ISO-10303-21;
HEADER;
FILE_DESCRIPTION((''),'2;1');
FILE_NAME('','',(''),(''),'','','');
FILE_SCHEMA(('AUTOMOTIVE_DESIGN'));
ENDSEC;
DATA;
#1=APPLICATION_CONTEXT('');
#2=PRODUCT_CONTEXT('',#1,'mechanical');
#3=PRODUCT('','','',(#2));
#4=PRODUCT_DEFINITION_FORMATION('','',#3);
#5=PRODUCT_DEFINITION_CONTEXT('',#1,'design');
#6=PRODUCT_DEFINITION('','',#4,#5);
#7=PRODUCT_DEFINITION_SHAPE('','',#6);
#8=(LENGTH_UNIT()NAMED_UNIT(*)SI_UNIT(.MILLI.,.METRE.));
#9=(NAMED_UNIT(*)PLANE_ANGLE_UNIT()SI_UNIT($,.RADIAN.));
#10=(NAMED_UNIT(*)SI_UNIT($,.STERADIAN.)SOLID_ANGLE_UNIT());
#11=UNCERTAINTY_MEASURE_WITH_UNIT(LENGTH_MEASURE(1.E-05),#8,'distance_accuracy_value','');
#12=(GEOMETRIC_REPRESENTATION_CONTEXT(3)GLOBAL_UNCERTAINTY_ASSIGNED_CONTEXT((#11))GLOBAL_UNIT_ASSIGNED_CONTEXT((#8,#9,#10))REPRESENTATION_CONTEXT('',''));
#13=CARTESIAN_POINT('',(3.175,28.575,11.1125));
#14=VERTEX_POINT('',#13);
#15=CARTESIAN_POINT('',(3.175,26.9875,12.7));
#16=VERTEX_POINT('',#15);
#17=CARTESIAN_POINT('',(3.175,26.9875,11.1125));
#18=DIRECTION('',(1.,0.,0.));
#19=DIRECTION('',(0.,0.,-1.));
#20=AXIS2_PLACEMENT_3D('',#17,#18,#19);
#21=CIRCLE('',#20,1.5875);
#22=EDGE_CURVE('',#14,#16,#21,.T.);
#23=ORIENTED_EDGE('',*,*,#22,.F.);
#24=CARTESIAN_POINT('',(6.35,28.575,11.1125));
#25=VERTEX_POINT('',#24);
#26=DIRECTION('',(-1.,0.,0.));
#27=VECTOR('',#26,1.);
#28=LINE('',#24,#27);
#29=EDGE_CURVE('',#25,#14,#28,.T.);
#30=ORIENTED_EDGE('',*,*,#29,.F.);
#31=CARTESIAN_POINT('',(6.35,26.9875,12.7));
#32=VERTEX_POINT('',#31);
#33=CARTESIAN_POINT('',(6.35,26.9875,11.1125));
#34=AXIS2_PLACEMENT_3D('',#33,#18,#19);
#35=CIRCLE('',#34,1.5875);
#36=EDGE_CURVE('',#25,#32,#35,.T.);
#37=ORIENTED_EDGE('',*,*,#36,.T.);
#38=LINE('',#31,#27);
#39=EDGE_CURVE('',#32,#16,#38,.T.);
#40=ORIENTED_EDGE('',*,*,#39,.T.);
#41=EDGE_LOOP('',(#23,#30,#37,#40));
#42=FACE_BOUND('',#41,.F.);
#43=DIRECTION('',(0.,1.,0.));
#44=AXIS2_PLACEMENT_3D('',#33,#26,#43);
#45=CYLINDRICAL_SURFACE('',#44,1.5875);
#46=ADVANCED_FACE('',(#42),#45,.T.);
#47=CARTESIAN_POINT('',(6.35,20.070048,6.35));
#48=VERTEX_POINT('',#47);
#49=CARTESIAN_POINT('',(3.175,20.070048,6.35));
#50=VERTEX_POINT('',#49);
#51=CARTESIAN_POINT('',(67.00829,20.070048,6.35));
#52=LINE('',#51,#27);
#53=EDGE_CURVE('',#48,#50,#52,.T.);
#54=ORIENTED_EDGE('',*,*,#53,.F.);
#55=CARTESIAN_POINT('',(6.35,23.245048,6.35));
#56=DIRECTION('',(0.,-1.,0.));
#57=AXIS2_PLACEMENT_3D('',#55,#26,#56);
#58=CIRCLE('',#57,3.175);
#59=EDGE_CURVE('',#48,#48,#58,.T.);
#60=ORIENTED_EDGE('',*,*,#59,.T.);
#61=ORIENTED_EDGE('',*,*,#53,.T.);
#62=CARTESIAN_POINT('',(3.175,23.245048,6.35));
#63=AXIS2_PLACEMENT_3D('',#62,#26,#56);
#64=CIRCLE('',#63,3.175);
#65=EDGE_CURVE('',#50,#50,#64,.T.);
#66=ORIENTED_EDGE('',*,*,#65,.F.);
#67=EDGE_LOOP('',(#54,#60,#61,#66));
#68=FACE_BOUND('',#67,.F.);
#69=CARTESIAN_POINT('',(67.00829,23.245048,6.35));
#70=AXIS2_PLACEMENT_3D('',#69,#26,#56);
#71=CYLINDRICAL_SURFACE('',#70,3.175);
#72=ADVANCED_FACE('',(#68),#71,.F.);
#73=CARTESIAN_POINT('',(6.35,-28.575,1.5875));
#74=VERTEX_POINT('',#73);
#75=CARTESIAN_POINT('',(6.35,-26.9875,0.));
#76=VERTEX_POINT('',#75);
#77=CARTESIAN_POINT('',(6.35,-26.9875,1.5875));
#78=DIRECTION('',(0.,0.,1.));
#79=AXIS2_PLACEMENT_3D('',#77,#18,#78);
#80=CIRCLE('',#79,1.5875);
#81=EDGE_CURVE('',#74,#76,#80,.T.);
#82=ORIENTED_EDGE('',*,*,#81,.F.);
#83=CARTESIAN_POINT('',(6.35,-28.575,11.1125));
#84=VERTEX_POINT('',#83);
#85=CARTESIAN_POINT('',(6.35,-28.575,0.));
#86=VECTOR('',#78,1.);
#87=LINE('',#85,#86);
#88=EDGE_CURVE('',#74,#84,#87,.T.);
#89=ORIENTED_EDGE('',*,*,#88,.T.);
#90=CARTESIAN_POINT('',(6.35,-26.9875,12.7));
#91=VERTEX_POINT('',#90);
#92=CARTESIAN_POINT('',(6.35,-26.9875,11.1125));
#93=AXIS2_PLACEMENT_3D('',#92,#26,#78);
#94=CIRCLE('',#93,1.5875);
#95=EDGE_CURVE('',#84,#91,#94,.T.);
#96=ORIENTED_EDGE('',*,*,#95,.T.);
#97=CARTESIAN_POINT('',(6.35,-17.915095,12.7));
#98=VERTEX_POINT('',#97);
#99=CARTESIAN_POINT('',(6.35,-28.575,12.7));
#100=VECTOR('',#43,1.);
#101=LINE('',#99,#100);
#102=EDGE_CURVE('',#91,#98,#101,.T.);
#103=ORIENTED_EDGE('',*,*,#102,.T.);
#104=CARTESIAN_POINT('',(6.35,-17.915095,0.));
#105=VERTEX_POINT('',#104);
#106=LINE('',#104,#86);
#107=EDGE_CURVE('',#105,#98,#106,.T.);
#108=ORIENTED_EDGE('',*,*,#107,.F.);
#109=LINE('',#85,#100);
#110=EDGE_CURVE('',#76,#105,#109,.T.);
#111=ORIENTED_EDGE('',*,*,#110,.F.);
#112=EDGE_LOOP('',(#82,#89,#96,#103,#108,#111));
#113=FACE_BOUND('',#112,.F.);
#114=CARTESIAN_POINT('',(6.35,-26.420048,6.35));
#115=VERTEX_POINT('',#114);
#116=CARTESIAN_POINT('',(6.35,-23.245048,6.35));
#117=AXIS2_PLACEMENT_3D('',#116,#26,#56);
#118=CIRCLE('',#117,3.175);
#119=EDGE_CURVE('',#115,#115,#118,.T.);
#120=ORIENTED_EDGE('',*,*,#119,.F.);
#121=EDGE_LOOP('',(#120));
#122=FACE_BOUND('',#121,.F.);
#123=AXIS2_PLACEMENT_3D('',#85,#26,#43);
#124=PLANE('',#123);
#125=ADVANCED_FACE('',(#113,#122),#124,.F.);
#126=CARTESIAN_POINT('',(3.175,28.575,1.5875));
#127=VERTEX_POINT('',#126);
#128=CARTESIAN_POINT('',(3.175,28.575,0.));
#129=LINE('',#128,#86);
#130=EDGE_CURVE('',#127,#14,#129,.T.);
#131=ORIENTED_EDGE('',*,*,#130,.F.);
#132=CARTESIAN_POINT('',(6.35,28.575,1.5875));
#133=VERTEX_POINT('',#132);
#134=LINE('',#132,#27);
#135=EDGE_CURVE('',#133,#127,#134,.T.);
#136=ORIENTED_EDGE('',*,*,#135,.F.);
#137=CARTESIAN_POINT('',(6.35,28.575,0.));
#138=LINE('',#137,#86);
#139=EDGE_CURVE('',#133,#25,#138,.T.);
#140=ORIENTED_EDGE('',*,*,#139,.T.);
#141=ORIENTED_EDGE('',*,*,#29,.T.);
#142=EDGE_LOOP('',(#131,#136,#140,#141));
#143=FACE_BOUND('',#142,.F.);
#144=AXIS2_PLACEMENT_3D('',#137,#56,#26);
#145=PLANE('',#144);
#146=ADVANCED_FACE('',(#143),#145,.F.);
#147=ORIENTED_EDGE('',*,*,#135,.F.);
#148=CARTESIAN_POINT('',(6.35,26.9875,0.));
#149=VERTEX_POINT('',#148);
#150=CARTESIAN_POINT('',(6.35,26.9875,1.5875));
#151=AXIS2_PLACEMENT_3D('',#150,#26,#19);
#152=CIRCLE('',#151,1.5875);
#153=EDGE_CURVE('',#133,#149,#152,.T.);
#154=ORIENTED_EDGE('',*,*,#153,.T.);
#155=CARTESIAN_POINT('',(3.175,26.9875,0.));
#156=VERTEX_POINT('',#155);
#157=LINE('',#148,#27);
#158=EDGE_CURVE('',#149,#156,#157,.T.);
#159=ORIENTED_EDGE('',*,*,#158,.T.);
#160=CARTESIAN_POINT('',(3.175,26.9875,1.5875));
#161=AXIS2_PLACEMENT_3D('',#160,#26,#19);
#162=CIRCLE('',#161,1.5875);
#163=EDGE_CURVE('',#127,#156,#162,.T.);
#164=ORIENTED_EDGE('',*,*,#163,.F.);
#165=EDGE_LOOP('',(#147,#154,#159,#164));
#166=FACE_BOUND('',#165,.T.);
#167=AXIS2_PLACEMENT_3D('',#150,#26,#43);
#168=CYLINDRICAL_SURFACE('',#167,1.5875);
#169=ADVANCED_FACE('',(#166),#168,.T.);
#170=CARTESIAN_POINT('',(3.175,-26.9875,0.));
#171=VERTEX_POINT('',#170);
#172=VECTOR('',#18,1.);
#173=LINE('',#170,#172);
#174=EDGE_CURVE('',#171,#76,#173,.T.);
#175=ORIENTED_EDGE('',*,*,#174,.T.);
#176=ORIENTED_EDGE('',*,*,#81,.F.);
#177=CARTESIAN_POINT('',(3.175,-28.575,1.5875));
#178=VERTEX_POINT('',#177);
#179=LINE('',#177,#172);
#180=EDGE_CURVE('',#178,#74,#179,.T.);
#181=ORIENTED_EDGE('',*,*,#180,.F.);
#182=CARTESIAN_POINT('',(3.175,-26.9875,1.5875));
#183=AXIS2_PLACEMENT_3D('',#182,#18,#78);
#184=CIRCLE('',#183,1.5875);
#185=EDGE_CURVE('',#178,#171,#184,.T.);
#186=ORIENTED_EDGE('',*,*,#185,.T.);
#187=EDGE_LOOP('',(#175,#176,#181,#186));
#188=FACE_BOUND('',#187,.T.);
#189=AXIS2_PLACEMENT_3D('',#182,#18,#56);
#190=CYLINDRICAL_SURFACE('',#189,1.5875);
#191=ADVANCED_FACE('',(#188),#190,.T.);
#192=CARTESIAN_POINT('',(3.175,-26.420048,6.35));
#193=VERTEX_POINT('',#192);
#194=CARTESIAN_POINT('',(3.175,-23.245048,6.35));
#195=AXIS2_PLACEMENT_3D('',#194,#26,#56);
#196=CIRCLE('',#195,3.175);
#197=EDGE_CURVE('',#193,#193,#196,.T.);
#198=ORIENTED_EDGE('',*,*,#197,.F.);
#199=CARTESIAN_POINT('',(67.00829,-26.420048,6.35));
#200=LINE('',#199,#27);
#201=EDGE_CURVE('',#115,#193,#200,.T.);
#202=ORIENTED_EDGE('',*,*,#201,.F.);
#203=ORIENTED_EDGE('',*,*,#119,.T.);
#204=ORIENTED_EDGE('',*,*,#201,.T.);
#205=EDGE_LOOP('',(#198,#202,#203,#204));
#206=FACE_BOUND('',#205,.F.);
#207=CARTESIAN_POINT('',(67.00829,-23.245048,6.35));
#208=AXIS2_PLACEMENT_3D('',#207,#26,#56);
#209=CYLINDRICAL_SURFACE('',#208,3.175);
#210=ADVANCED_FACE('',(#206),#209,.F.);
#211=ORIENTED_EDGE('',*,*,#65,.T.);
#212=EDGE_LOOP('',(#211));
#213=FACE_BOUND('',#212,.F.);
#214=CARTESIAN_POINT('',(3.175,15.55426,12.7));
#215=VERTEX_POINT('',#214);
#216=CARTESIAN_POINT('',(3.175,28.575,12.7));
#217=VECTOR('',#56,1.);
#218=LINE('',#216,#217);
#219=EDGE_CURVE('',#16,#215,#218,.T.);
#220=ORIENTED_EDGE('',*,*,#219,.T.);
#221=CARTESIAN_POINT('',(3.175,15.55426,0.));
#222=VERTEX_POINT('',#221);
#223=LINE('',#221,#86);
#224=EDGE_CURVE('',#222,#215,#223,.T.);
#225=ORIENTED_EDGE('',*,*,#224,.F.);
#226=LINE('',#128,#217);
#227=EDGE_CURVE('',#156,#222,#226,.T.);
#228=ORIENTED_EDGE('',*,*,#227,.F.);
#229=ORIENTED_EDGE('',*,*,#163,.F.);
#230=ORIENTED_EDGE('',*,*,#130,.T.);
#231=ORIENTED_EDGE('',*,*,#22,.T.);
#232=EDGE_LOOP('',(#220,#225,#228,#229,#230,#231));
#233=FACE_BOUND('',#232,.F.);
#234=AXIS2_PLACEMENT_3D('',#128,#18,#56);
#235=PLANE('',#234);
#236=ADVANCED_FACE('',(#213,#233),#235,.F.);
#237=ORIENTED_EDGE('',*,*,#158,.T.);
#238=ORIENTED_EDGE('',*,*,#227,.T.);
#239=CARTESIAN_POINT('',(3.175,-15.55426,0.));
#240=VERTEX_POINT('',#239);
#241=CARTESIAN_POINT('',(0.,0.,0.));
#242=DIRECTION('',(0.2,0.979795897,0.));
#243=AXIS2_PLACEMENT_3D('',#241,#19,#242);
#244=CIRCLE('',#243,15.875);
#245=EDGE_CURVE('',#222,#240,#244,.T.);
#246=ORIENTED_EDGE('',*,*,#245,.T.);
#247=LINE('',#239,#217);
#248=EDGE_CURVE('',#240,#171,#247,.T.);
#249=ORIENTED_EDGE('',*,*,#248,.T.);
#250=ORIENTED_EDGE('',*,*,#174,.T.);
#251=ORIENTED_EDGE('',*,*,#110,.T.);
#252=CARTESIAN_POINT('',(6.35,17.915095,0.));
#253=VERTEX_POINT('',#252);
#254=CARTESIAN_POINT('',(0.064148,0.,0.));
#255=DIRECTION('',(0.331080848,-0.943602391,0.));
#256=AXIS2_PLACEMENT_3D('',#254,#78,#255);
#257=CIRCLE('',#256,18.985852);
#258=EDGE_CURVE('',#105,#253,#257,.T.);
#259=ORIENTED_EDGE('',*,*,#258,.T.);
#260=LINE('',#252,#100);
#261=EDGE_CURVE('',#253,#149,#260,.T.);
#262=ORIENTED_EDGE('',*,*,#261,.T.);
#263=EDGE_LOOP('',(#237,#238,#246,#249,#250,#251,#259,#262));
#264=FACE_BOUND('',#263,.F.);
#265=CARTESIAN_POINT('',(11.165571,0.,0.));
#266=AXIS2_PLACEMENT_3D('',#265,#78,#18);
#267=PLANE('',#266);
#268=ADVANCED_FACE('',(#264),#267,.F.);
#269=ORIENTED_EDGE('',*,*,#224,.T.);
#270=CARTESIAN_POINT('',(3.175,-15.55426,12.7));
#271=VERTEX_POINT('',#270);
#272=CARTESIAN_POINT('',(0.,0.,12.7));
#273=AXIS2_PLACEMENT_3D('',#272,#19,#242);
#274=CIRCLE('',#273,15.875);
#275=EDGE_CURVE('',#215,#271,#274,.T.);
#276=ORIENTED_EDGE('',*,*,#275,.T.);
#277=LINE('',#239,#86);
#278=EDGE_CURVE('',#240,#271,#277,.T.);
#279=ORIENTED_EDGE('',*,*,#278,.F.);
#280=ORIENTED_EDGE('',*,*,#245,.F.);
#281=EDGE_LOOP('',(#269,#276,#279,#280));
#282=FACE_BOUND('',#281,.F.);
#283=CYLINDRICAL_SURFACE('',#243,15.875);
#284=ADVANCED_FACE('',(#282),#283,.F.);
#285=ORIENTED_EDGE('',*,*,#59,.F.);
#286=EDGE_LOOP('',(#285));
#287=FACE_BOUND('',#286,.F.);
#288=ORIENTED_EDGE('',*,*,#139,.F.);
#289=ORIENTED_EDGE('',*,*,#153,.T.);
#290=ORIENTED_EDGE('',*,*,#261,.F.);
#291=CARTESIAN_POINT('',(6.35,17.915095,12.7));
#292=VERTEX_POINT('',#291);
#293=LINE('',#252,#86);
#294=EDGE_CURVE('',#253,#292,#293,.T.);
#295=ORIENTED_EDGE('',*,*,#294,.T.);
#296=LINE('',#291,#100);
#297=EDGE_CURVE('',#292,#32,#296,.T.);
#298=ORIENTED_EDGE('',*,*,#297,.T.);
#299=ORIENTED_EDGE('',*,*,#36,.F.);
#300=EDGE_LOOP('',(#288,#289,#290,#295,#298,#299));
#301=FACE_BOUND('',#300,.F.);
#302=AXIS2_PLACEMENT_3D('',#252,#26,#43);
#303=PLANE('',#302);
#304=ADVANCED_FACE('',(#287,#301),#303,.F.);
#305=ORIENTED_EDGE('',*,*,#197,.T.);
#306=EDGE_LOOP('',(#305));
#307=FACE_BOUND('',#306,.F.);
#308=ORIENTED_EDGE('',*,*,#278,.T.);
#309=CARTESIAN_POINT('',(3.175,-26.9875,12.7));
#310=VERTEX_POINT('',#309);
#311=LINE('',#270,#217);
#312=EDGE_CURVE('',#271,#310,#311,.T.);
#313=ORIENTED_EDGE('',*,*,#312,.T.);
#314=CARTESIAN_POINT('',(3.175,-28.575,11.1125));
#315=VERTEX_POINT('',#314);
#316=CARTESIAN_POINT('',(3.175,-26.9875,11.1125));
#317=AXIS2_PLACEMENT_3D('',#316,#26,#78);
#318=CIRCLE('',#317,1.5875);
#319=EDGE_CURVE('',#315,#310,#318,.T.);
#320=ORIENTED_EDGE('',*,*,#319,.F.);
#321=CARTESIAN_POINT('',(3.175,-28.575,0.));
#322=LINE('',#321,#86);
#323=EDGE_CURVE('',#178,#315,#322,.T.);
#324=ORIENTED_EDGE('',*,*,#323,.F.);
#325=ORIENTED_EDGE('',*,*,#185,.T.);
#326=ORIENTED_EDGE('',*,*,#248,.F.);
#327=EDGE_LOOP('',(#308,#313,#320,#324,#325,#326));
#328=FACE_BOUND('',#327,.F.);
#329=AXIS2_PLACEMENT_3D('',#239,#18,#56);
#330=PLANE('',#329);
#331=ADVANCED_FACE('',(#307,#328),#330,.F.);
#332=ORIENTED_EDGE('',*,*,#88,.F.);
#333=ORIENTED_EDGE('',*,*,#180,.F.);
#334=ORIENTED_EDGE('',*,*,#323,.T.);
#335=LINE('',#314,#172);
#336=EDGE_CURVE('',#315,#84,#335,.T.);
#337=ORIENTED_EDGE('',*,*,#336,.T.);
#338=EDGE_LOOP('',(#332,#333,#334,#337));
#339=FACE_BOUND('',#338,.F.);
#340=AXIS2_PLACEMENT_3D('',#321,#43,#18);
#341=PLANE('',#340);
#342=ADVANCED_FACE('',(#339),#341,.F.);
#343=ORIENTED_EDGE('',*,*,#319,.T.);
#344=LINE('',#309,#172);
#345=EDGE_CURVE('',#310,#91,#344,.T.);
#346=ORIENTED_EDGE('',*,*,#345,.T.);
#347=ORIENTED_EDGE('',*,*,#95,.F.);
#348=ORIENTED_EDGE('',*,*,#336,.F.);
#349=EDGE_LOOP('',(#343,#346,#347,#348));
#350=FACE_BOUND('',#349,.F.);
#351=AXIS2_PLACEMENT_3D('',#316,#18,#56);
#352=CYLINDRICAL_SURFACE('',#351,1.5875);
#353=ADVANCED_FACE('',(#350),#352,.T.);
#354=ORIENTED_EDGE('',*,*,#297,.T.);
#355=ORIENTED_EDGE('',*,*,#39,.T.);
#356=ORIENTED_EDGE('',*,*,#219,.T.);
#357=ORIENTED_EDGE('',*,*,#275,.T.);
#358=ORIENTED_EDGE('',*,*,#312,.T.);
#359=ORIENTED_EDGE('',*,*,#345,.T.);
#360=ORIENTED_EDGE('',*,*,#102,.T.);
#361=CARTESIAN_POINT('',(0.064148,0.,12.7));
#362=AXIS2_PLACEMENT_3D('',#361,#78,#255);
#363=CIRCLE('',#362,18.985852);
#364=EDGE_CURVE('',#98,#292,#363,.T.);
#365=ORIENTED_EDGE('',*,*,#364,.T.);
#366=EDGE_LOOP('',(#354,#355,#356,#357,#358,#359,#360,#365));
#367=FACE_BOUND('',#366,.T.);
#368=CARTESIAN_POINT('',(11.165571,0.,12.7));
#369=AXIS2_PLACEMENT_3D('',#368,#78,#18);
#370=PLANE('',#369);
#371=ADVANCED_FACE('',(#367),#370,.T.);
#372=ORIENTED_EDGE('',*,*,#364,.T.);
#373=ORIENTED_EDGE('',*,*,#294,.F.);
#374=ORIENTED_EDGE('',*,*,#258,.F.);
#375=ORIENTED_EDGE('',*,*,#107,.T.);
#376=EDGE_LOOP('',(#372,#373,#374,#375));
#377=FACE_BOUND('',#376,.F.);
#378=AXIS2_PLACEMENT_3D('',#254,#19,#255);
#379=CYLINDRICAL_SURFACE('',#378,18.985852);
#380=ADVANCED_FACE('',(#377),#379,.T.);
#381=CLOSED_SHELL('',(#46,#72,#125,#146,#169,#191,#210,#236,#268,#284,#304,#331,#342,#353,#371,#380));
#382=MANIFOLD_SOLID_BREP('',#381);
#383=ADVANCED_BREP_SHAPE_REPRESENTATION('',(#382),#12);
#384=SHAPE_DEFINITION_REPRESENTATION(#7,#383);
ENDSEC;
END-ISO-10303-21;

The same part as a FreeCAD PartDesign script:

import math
import FreeCAD as App
import Part
import Sketcher
from FreeCAD import Vector
Q = App.Units.Quantity


def edges_at(feature, points):
    """Names of the edges that pass closest to the given points."""
    edges = feature.Shape.Edges
    near = lambda p: min(range(len(edges)), key=lambda i: edges[i].distToShape(Part.Vertex(*p))[0])
    return sorted({f"Edge{near(p) + 1}" for p in points})

doc = App.newDocument("Part")
params = doc.addObject("Spreadsheet::Sheet", "Params")
for row, (alias, value) in enumerate([
    ("sketch1_radius", "0.625 in"),
    ("sketch1_width", "0.125 in"),
    ("pad1_length", "0.5 in"),
    ("fillet_radius", "0.0625 in"),
    ("sketch2_diameter", "0.25 in"),
    ("hole_diameter", "0.25 in"),
], start=1):
    params.set(f"A{row}", alias)
    params.set(f"B{row}", "=" + value)
    params.setAlias(f"B{row}", alias)

body = doc.addObject("PartDesign::Body", "Body")

sketch1 = body.newObject("Sketcher::SketchObject", "Sketch")
sketch1.AttachmentSupport = (doc.getObject("XY_Plane"), [""])
sketch1.MapMode = "FlatFace"
sketch1.addGeometry([
    Part.ArcOfCircle(Part.Circle(Vector(0, 0, 0), Vector(0, 0, 1), 15.9), math.radians(-78), math.radians(78)),
    Part.LineSegment(Vector(3.2, -15.6, 0), Vector(3.2, -28.6, 0)),
    Part.LineSegment(Vector(3.2, -28.6, 0), Vector(6.3, -28.6, 0)),
    Part.LineSegment(Vector(6.3, -28.6, 0), Vector(6.3, -17.9, 0)),
    Part.ArcOfCircle(Part.Circle(Vector(0.1, 0, 0), Vector(0, 0, 1), 19), math.radians(-71), math.radians(71)),
    Part.LineSegment(Vector(6.3, 17.9, 0), Vector(6.3, 28.6, 0)),
    Part.LineSegment(Vector(6.3, 28.6, 0), Vector(3.2, 28.6, 0)),
    Part.LineSegment(Vector(3.2, 28.6, 0), Vector(3.2, 15.6, 0)),
], False)
sketch1.addConstraint([
    Sketcher.Constraint("Coincident", 0, 1, 1, 1),
    Sketcher.Constraint("Coincident", 1, 2, 2, 1),
    Sketcher.Constraint("Coincident", 2, 2, 3, 1),
    Sketcher.Constraint("Coincident", 3, 2, 4, 1),
    Sketcher.Constraint("Coincident", 4, 2, 5, 1),
    Sketcher.Constraint("Coincident", 5, 2, 6, 1),
    Sketcher.Constraint("Coincident", 6, 2, 7, 1),
    Sketcher.Constraint("Coincident", 7, 2, 0, 2),
    Sketcher.Constraint("Vertical", 1),
    Sketcher.Constraint("Horizontal", 2),
    Sketcher.Constraint("Vertical", 3),
    Sketcher.Constraint("Vertical", 5),
    Sketcher.Constraint("Horizontal", 6),
    Sketcher.Constraint("Vertical", 7),
    Sketcher.Constraint("Coincident", 0, 3, -1, 1),
    Sketcher.Constraint("Symmetric", 3, 2, 4, 2, -1),
    Sketcher.Constraint("Symmetric", 1, 2, 6, 2, -1),
    Sketcher.Constraint("Radius", 0, Q("0.625 in")),
    Sketcher.Constraint("DistanceX", 2, 1, 2, 2, Q("0.125 in")),
    Sketcher.Constraint("DistanceX", -1, 1, 2, 2, Q("0.25 in")),
    Sketcher.Constraint("DistanceY", 1, 2, -1, 1, Q("1.125 in")),
    Sketcher.Constraint("Radius", 4, 18.985852),
    Sketcher.Constraint("DistanceY", 3, 1, 3, 2, 10.659905),
])
sketch1.setExpression("Constraints[17]", "Params.sketch1_radius")
sketch1.setExpression("Constraints[18]", "Params.sketch1_width")
pad1 = body.newObject("PartDesign::Pad", "Pad")
pad1.Profile = sketch1
pad1.setExpression("Length", "Params.pad1_length")
doc.recompute()

fillet = body.newObject("PartDesign::Fillet", "Fillet")
fillet.Base = (pad1, edges_at(pad1, [
    (4.763, 28.575, 12.7),
    (4.763, 28.575, 0),
    (4.763, -28.575, 0),
    (4.763, -28.575, 12.7),
]))
fillet.setExpression("Radius", "Params.fillet_radius")

sketch2 = body.newObject("Sketcher::SketchObject", "Sketch001")
sketch2.AttachmentSupport = (doc.getObject("YZ_Plane"), [""])
sketch2.MapMode = "FlatFace"
sketch2.AttachmentOffset = App.Placement(Vector(0, 0, 0.25 * 25.4), App.Rotation())
sketch2.addGeometry([
    Part.Circle(Vector(-23.2, 6.3, 0), Vector(0, 0, 1), 3.2),
    Part.Circle(Vector(23.2, 6.3, 0), Vector(0, 0, 1), 3.2),
], False)
sketch2.addConstraint([
    Sketcher.Constraint("Equal", 0, 1),
    Sketcher.Constraint("Symmetric", 0, 3, 1, 3, -2),
    Sketcher.Constraint("Diameter", 0, Q("0.25 in")),
    Sketcher.Constraint("DistanceY", -1, 1, 0, 3, Q("0.25 in")),
    Sketcher.Constraint("DistanceX", 0, 3, -1, 1, 23.245048),
])
sketch2.setExpression("Constraints[2]", "Params.sketch2_diameter")
doc.recompute()
hole = body.newObject("PartDesign::Hole", "Hole")
hole.Profile = sketch2
hole.ThreadType = "None"
hole.setExpression("Diameter", "Params.hole_diameter")
hole.DepthType = "ThroughAll"

doc.recompute()
